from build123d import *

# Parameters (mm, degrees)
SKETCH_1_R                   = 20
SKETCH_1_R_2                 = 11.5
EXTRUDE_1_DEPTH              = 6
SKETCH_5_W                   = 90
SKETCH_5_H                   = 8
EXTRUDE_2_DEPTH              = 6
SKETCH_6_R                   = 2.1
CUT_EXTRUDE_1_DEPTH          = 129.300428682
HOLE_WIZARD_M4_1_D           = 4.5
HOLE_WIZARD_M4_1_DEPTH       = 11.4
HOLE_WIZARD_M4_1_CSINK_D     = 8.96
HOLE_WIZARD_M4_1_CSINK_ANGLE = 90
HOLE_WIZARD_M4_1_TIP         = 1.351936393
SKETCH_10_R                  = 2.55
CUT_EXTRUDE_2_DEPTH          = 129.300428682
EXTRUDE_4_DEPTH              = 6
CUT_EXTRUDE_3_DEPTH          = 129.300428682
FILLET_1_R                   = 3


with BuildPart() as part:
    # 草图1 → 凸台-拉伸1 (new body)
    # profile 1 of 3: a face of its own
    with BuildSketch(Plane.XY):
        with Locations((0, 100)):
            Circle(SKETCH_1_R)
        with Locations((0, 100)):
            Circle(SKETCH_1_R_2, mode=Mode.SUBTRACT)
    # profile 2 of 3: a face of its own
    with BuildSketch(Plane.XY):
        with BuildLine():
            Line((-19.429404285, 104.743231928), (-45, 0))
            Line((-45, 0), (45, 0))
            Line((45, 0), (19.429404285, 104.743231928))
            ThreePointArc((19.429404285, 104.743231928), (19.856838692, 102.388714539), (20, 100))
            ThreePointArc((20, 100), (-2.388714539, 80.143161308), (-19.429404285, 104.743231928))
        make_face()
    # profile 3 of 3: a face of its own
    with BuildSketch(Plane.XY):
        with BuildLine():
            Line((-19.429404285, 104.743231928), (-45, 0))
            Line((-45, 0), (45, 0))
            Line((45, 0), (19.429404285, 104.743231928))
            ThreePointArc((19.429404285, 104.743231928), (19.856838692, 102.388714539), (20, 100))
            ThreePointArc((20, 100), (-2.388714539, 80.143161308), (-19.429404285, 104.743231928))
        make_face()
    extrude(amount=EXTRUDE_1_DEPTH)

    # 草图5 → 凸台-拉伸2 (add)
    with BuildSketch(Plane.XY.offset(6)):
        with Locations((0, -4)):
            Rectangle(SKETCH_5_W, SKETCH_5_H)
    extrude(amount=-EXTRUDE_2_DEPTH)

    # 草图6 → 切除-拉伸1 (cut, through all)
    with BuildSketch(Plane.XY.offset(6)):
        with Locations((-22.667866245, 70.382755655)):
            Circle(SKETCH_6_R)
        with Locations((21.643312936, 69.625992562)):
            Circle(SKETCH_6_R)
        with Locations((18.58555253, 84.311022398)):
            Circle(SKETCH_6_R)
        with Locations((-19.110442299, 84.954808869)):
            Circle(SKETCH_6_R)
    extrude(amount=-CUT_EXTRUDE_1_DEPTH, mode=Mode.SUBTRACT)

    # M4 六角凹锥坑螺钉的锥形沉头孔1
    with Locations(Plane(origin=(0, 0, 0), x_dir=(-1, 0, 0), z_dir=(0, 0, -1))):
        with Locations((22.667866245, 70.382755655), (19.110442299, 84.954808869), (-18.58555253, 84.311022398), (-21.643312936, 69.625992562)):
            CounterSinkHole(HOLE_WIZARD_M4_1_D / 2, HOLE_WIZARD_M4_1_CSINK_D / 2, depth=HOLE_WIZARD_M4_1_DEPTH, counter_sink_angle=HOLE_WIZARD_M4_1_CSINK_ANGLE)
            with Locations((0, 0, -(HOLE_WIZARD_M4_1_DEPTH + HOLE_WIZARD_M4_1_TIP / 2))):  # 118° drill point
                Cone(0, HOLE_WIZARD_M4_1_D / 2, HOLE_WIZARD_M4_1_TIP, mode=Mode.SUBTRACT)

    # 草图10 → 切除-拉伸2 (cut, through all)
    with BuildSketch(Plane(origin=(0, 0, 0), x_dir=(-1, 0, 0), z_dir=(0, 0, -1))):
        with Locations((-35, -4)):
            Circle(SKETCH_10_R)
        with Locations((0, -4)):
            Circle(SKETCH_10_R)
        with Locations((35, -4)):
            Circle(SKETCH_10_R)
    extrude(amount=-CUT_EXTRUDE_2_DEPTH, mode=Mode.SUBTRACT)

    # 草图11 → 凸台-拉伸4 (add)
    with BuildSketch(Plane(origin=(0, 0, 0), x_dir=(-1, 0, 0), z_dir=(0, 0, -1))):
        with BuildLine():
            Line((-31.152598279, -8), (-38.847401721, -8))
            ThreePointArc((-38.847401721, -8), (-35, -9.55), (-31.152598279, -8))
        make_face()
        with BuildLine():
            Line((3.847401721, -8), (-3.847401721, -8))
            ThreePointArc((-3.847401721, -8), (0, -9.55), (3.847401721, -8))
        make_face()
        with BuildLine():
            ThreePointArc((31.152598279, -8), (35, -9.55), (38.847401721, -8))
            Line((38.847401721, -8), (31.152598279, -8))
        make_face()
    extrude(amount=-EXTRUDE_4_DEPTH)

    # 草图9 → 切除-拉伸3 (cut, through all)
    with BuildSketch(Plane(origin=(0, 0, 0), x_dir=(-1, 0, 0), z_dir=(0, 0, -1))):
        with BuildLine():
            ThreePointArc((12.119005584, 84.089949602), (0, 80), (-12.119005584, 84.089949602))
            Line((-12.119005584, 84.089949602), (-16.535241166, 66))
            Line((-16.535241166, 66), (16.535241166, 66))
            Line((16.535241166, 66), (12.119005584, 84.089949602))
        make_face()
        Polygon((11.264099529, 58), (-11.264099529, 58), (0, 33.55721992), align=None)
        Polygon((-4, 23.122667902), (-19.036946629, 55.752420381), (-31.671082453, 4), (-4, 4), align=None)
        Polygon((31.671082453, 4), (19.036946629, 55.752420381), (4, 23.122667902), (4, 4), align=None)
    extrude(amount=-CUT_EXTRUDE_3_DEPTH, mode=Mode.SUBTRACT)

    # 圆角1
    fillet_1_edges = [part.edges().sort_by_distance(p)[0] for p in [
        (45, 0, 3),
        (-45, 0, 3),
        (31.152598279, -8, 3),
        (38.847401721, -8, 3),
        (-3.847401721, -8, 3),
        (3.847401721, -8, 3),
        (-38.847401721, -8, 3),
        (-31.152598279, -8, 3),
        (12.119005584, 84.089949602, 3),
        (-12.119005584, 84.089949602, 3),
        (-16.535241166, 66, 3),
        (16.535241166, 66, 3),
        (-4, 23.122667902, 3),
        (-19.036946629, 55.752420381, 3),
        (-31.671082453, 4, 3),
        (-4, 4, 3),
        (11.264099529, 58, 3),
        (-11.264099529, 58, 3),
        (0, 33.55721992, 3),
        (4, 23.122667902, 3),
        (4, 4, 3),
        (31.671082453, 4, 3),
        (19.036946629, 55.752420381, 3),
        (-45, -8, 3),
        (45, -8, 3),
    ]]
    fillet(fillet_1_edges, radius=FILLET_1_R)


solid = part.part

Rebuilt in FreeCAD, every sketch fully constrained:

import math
import FreeCAD as App
import Part
import Sketcher

V = App.Vector
Q = App.Units.Quantity


def edges_at(feature, points):
    """Names of the edges that pass closest to the given points."""
    edges = feature.Shape.Edges
    near = lambda p: min(range(len(edges)), key=lambda i: edges[i].distToShape(Part.Vertex(*p))[0])
    return sorted({f"Edge{near(p) + 1}" for p in points})


def add_polygon(sketch, points):
    """Adds a closed chain of lines whose ends are joined by coincident constraints."""
    first, n = sketch.GeometryCount, len(points)
    for a, b in zip(points, points[1:] + points[:1]):
        sketch.addGeometry(Part.LineSegment(App.Vector(*a, 0), App.Vector(*b, 0)), False)
    for i in range(n):
        sketch.addConstraint(Sketcher.Constraint("Coincident", first + i, 2, first + (i + 1) % n, 1))

doc = App.newDocument("Part")
body = doc.addObject("PartDesign::Body", "Body")

# Sketch on XY plane
sketch1 = body.newObject("Sketcher::SketchObject", "Sketch")
sketch1.AttachmentSupport = (doc.getObject("XY_Plane"), [""])
sketch1.MapMode = "FlatFace"
sketch1.addGeometry(Part.ArcOfCircle(Part.Circle(V(0, 100, 0), V(0, 0, 1), 20), math.radians(14), math.radians(166)), False)
sketch1.addGeometry(Part.LineSegment(V(-19, 105, 0), V(-45, 0, 0)), False)
sketch1.addGeometry(Part.LineSegment(V(-45, 0, 0), V(45, 0, 0)), False)
sketch1.addGeometry(Part.LineSegment(V(45, 0, 0), V(19, 105, 0)), False)
sketch1.addGeometry(Part.Circle(V(0, 100, 0), V(0, 0, 1), 12), False)
sketch1.addConstraint(Sketcher.Constraint("Tangent", 0, 2, 1, 1))
sketch1.addConstraint(Sketcher.Constraint("Coincident", 1, 2, 2, 1))
sketch1.addConstraint(Sketcher.Constraint("Coincident", 2, 2, 3, 1))
sketch1.addConstraint(Sketcher.Constraint("Tangent", 3, 2, 0, 1))
sketch1.addConstraint(Sketcher.Constraint("Horizontal", 2))
sketch1.addConstraint(Sketcher.Constraint("Coincident", 4, 3, 0, 3))
sketch1.addConstraint(Sketcher.Constraint("Symmetric", 1, 2, 2, 2, -1, 1))
sketch1.addConstraint(Sketcher.Constraint("PointOnObject", 0, 3, -2))
sketch1.addConstraint(Sketcher.Constraint("Diameter", 4, Q("23 mm")))
sketch1.addConstraint(Sketcher.Constraint("Radius", 0, Q("20 mm")))
sketch1.addConstraint(Sketcher.Constraint("DistanceX", 2, 1, 2, 2, Q("90 mm")))
sketch1.addConstraint(Sketcher.Constraint("DistanceY", -1, 1, 0, 3, Q("100 mm")))
pad1 = body.newObject("PartDesign::Pad", "Pad")
pad1.Profile = sketch1
pad1.Length = 6

# Sketch on XY plane
sketch2 = body.newObject("Sketcher::SketchObject", "Sketch001")
sketch2.AttachmentSupport = (doc.getObject("XY_Plane"), [""])
sketch2.MapMode = "FlatFace"
sketch2.AttachmentOffset = App.Placement(V(0, 0, 6), App.Rotation())
add_polygon(sketch2, [(-45, 0), (-45, -8), (45, -8), (45, 0)])  # lines 0-3
sketch2.addConstraint(Sketcher.Constraint("Vertical", 0))
sketch2.addConstraint(Sketcher.Constraint("Horizontal", 1))
sketch2.addConstraint(Sketcher.Constraint("Vertical", 2))
sketch2.addConstraint(Sketcher.Constraint("Horizontal", 3))
sketch2.addConstraint(Sketcher.Constraint("Symmetric", 2, 2, 3, 2, -1, 1))
sketch2.addConstraint(Sketcher.Constraint("DistanceX", 1, 1, 1, 2, Q("90 mm")))
sketch2.addConstraint(Sketcher.Constraint("DistanceY", 0, 2, 0, 1, Q("8 mm")))
pad2 = body.newObject("PartDesign::Pad", "Pad001")
pad2.Profile = sketch2
pad2.Length = 6
pad2.Reversed = True

# Sketch on XY plane
sketch3 = body.newObject("Sketcher::SketchObject", "Sketch002")
sketch3.AttachmentSupport = (doc.getObject("XY_Plane"), [""])
sketch3.MapMode = "FlatFace"
sketch3.AttachmentOffset = App.Placement(V(0, 0, 6), App.Rotation())
sketch3.addGeometry(Part.Circle(V(-22.7, 70.4, 0), V(0, 0, 1), 2.1), False)
sketch3.addGeometry(Part.Circle(V(21.6, 69.6, 0), V(0, 0, 1), 2.1), False)
sketch3.addGeometry(Part.Circle(V(18.6, 84.3, 0), V(0, 0, 1), 2.1), False)
sketch3.addGeometry(Part.Circle(V(-19.1, 85, 0), V(0, 0, 1), 2.1), False)
sketch3.addConstraint(Sketcher.Constraint("Equal", 0, 1))
sketch3.addConstraint(Sketcher.Constraint("Equal", 1, 2))
sketch3.addConstraint(Sketcher.Constraint("Equal", 2, 3))
sketch3.addConstraint(Sketcher.Constraint("Diameter", 0, Q("4.2 mm")))
sketch3.addConstraint(Sketcher.Constraint("DistanceY", -1, 1, 3, 3, Q("84.954809 mm")))
sketch3.addConstraint(Sketcher.Constraint("DistanceX", 0, 3, 1, 3, Q("44.311179 mm")))
sketch3.addConstraint(Sketcher.Constraint("DistanceX", 2, 3, 1, 3, Q("3.05776 mm")))
sketch3.addConstraint(Sketcher.Constraint("DistanceY", 1, 3, 2, 3, Q("14.68503 mm")))
sketch3.addConstraint(Sketcher.Constraint("DistanceX", 0, 3, -1, 1, Q("22.667866 mm")))
sketch3.addConstraint(Sketcher.Constraint("DistanceY", -1, 1, 0, 3, Q("70.382756 mm")))
sketch3.addConstraint(Sketcher.Constraint("DistanceY", -1, 1, 1, 3, Q("69.625993 mm")))
sketch3.addConstraint(Sketcher.Constraint("DistanceX", 3, 3, -1, 1, Q("19.110442 mm")))
pocket1 = body.newObject("PartDesign::Pocket", "Pocket")
pocket1.Profile = sketch3
pocket1.Type = "ThroughAll"

# Sketch on XY plane
sketch4 = body.newObject("Sketcher::SketchObject", "Sketch003")
sketch4.AttachmentSupport = (doc.getObject("XY_Plane"), [""])
sketch4.MapMode = "FlatFace"
sketch4.addGeometry(Part.Circle(V(-22.7, 70.4, 0), V(0, 0, 1), 2.2), False)
sketch4.addGeometry(Part.Circle(V(-19.1, 85, 0), V(0, 0, 1), 2.2), False)
sketch4.addGeometry(Part.Circle(V(18.6, 84.3, 0), V(0, 0, 1), 2.2), False)
sketch4.addGeometry(Part.Circle(V(21.6, 69.6, 0), V(0, 0, 1), 2.2), False)
sketch4.addConstraint(Sketcher.Constraint("Equal", 0, 1))
sketch4.addConstraint(Sketcher.Constraint("Equal", 1, 2))
sketch4.addConstraint(Sketcher.Constraint("Equal", 2, 3))
sketch4.addConstraint(Sketcher.Constraint("Diameter", 0, Q("4.5 mm")))
sketch4.addConstraint(Sketcher.Constraint("DistanceY", -1, 1, 1, 3, Q("84.954809 mm")))
sketch4.addConstraint(Sketcher.Constraint("DistanceX", 0, 3, 2, 3, Q("41.253419 mm")))
sketch4.addConstraint(Sketcher.Constraint("DistanceX", 2, 3, 3, 3, Q("3.05776 mm")))
sketch4.addConstraint(Sketcher.Constraint("DistanceY", 3, 3, 2, 3, Q("14.68503 mm")))
sketch4.addConstraint(Sketcher.Constraint("DistanceX", 0, 3, -1, 1, Q("22.667866 mm")))
sketch4.addConstraint(Sketcher.Constraint("DistanceY", -1, 1, 0, 3, Q("70.382756 mm")))
sketch4.addConstraint(Sketcher.Constraint("DistanceX", 1, 3, -1, 1, Q("19.110442 mm")))
sketch4.addConstraint(Sketcher.Constraint("DistanceY", -1, 1, 2, 3, Q("84.311022 mm")))
doc.recompute()
hole = body.newObject("PartDesign::Hole", "Hole")
hole.Profile = sketch4
hole.ThreadType = "None"
hole.Diameter = 4.5
hole.DepthType = "Dimension"
hole.Depth = 11.4
hole.DrillPoint = "Angled"
hole.DrillPointAngle = 118
hole.HoleCutType = "Countersink"
hole.HoleCutDiameter = 8.96
hole.HoleCutCountersinkAngle = 90
hole.Reversed = True

# Sketch on XY plane
sketch5 = body.newObject("Sketcher::SketchObject", "Sketch004")
sketch5.AttachmentSupport = (doc.getObject("XY_Plane"), [""])
sketch5.MapMode = "FlatFace"
sketch5.addGeometry(Part.Circle(V(35, -4, 0), V(0, 0, 1), 2.5), False)
sketch5.addGeometry(Part.Circle(V(0, -4, 0), V(0, 0, 1), 2.5), False)
sketch5.addGeometry(Part.Circle(V(-35, -4, 0), V(0, 0, 1), 2.5), False)
sketch5.addConstraint(Sketcher.Constraint("Equal", 0, 1))
sketch5.addConstraint(Sketcher.Constraint("Equal", 1, 2))
sketch5.addConstraint(Sketcher.Constraint("Symmetric", 0, 3, 2, 3, -2))
sketch5.addConstraint(Sketcher.Constraint("PointOnObject", 1, 3, -2))
sketch5.addConstraint(Sketcher.Constraint("Horizontal", 0, 3, 1, 3))
sketch5.addConstraint(Sketcher.Constraint("Diameter", 0, Q("5.1 mm")))
sketch5.addConstraint(Sketcher.Constraint("DistanceX", -1, 1, 0, 3, Q("35 mm")))
sketch5.addConstraint(Sketcher.Constraint("DistanceY", 0, 3, -1, 1, Q("4 mm")))
pocket2 = body.newObject("PartDesign::Pocket", "Pocket001")
pocket2.Profile = sketch5
pocket2.Type = "ThroughAll"
pocket2.Reversed = True

# Sketch on XY plane
sketch6 = body.newObject("Sketcher::SketchObject", "Sketch005")
sketch6.AttachmentSupport = (doc.getObject("XY_Plane"), [""])
sketch6.MapMode = "FlatFace"
sketch6.addGeometry(Part.LineSegment(V(31, -8, 0), V(39, -8, 0)), False)
sketch6.addGeometry(Part.ArcOfCircle(Part.Circle(V(35, -4, 0), V(0, 0, 1), 6), math.radians(-134), math.radians(-46)), False)
sketch6.addGeometry(Part.LineSegment(V(-4, -8, 0), V(4, -8, 0)), False)
sketch6.addGeometry(Part.ArcOfCircle(Part.Circle(V(0, -4, 0), V(0, 0, 1), 6), math.radians(-134), math.radians(-46)), False)
sketch6.addGeometry(Part.ArcOfCircle(Part.Circle(V(-35, -4, 0), V(0, 0, 1), 6), math.radians(-134), math.radians(-46)), False)
sketch6.addGeometry(Part.LineSegment(V(-39, -8, 0), V(-31, -8, 0)), False)
sketch6.addConstraint(Sketcher.Constraint("Coincident", 0, 1, 1, 1))
sketch6.addConstraint(Sketcher.Constraint("Coincident", 1, 2, 0, 2))
sketch6.addConstraint(Sketcher.Constraint("Coincident", 2, 1, 3, 1))
sketch6.addConstraint(Sketcher.Constraint("Coincident", 3, 2, 2, 2))
sketch6.addConstraint(Sketcher.Constraint("Coincident", 4, 1, 5, 1))
sketch6.addConstraint(Sketcher.Constraint("Coincident", 5, 2, 4, 2))
sketch6.addConstraint(Sketcher.Constraint("Horizontal", 0))
sketch6.addConstraint(Sketcher.Constraint("Horizontal", 2))
sketch6.addConstraint(Sketcher.Constraint("Horizontal", 5))
sketch6.addConstraint(Sketcher.Constraint("Equal", 1, 3))
sketch6.addConstraint(Sketcher.Constraint("Equal", 3, 4))
sketch6.addConstraint(Sketcher.Constraint("Symmetric", 1, 3, 4, 3, -2))
sketch6.addConstraint(Sketcher.Constraint("PointOnObject", 3, 3, -2))
sketch6.addConstraint(Sketcher.Constraint("Horizontal", 1, 3, 3, 3))
sketch6.addConstraint(Sketcher.Constraint("Horizontal", 1, 2, 2, 1))
sketch6.addConstraint(Sketcher.Constraint("Horizontal", 3, 2, 4, 1))
sketch6.addConstraint(Sketcher.Constraint("Radius", 1, Q("5.55 mm")))
sketch6.addConstraint(Sketcher.Constraint("DistanceX", -1, 1, 1, 3, Q("35 mm")))
sketch6.addConstraint(Sketcher.Constraint("DistanceY", 1, 3, -1, 1, Q("4 mm")))
sketch6.addConstraint(Sketcher.Constraint("DistanceY", 0, 1, -1, 1, Q("8 mm")))
pad3 = body.newObject("PartDesign::Pad", "Pad002")
pad3.Profile = sketch6
pad3.Length = 6

# Sketch on XY plane
sketch7 = body.newObject("Sketcher::SketchObject", "Sketch006")
sketch7.AttachmentSupport = (doc.getObject("XY_Plane"), [""])
sketch7.MapMode = "FlatFace"
sketch7.addGeometry(Part.ArcOfCircle(Part.Circle(V(0, 100, 0), V(0, 0, 1), 20), math.radians(-127), math.radians(-53)), False)  # 0
sketch7.addGeometry(Part.LineSegment(V(12, 84, 0), V(17, 66, 0)), False)  # 1
sketch7.addGeometry(Part.LineSegment(V(17, 66, 0), V(-17, 66, 0)), False)  # 2
sketch7.addGeometry(Part.LineSegment(V(-17, 66, 0), V(-12, 84, 0)), False)  # 3
add_polygon(sketch7, [(-11, 58), (11, 58), (0, 34)])  # lines 4-6
add_polygon(sketch7, [(4, 23), (19, 56), (32, 4), (4, 4)])  # lines 7-10
add_polygon(sketch7, [(-32, 4), (-19, 56), (-4, 23), (-4, 4)])  # lines 11-14
sketch7.addConstraint(Sketcher.Constraint("Coincident", 0, 2, 1, 1))
sketch7.addConstraint(Sketcher.Constraint("Coincident", 1, 2, 2, 1))
sketch7.addConstraint(Sketcher.Constraint("Coincident", 2, 2, 3, 1))
sketch7.addConstraint(Sketcher.Constraint("Coincident", 3, 2, 0, 1))
sketch7.addConstraint(Sketcher.Constraint("Horizontal", 2))
sketch7.addConstraint(Sketcher.Constraint("Horizontal", 4))
sketch7.addConstraint(Sketcher.Constraint("Horizontal", 9))
sketch7.addConstraint(Sketcher.Constraint("Vertical", 10))
sketch7.addConstraint(Sketcher.Constraint("Vertical", 13))
sketch7.addConstraint(Sketcher.Constraint("Horizontal", 14))
sketch7.addConstraint(Sketcher.Constraint("Symmetric", 0, 2, 3, 2, -2))
sketch7.addConstraint(Sketcher.Constraint("Symmetric", 7, 2, 11, 2, -2))
sketch7.addConstraint(Sketcher.Constraint("Symmetric", 10, 2, 12, 2, -2))
sketch7.addConstraint(Sketcher.Constraint("Symmetric", 8, 2, 14, 2, -2))
sketch7.addConstraint(Sketcher.Constraint("PointOnObject", 5, 2, -2))
sketch7.addConstraint(Sketcher.Constraint("Parallel", 5, 7))
sketch7.addConstraint(Sketcher.Constraint("Parallel", 1, 8))
sketch7.addConstraint(Sketcher.Constraint("Parallel", 3, 11))
sketch7.addConstraint(Sketcher.Constraint("Parallel", 6, 12))
sketch7.addConstraint(Sketcher.Constraint("Radius", 0, Q("20 mm")))
sketch7.addConstraint(Sketcher.Constraint("DistanceY", -1, 1, 0, 3, Q("100 mm")))
sketch7.addConstraint(Sketcher.Constraint("DistanceY", -1, 1, 1, 2, Q("66 mm")))
sketch7.addConstraint(Sketcher.Constraint("DistanceY", -1, 1, 4, 2, Q("58 mm")))
sketch7.addConstraint(Sketcher.Constraint("DistanceY", -1, 1, 8, 2, Q("4 mm")))
sketch7.addConstraint(Sketcher.Constraint("DistanceX", -1, 1, 9, 2, Q("4 mm")))
sketch7.addConstraint(Sketcher.Constraint("DistanceX", 4, 1, 4, 2, Q("22.528199 mm")))
sketch7.addConstraint(Sketcher.Constraint("DistanceY", 5, 2, 7, 2, Q("22.1952 mm")))
sketch7.addConstraint(Sketcher.Constraint("Distance", 1, Q("18.621209 mm")))
sketch7.addConstraint(Sketcher.Constraint("Distance", 5, Q("26.913369 mm")))
sketch7.addConstraint(Sketcher.Constraint("Distance", 7, Q("35.927851 mm")))
sketch7.addConstraint(Sketcher.Constraint("DistanceX", 2, 2, 2, 1, Q("33.070482 mm")))
pocket3 = body.newObject("PartDesign::Pocket", "Pocket002")
pocket3.Profile = sketch7
pocket3.Type = "ThroughAll"
pocket3.Reversed = True
doc.recompute()

fillet = body.newObject("PartDesign::Fillet", "Fillet")
fillet.Base = (pocket3, edges_at(pocket3, [
    (45, 0, 3),
    (-45, 0, 3),
    (31.153, -8, 3),
    (38.847, -8, 3),
    (-3.847, -8, 3),
    (3.847, -8, 3),
    (-38.847, -8, 3),
    (-31.153, -8, 3),
    (12.119, 84.09, 3),
    (-12.119, 84.09, 3),
    (-16.535, 66, 3),
    (16.535, 66, 3),
    (-4, 23.123, 3),
    (-19.037, 55.752, 3),
    (-31.671, 4, 3),
    (-4, 4, 3),
    (11.264, 58, 3),
    (-11.264, 58, 3),
    (0, 33.557, 3),
    (4, 23.123, 3),
    (4, 4, 3),
    (31.671, 4, 3),
    (19.037, 55.752, 3),
    (-45, -8, 3),
    (45, -8, 3),
]))
fillet.Radius = 3

doc.recompute()
